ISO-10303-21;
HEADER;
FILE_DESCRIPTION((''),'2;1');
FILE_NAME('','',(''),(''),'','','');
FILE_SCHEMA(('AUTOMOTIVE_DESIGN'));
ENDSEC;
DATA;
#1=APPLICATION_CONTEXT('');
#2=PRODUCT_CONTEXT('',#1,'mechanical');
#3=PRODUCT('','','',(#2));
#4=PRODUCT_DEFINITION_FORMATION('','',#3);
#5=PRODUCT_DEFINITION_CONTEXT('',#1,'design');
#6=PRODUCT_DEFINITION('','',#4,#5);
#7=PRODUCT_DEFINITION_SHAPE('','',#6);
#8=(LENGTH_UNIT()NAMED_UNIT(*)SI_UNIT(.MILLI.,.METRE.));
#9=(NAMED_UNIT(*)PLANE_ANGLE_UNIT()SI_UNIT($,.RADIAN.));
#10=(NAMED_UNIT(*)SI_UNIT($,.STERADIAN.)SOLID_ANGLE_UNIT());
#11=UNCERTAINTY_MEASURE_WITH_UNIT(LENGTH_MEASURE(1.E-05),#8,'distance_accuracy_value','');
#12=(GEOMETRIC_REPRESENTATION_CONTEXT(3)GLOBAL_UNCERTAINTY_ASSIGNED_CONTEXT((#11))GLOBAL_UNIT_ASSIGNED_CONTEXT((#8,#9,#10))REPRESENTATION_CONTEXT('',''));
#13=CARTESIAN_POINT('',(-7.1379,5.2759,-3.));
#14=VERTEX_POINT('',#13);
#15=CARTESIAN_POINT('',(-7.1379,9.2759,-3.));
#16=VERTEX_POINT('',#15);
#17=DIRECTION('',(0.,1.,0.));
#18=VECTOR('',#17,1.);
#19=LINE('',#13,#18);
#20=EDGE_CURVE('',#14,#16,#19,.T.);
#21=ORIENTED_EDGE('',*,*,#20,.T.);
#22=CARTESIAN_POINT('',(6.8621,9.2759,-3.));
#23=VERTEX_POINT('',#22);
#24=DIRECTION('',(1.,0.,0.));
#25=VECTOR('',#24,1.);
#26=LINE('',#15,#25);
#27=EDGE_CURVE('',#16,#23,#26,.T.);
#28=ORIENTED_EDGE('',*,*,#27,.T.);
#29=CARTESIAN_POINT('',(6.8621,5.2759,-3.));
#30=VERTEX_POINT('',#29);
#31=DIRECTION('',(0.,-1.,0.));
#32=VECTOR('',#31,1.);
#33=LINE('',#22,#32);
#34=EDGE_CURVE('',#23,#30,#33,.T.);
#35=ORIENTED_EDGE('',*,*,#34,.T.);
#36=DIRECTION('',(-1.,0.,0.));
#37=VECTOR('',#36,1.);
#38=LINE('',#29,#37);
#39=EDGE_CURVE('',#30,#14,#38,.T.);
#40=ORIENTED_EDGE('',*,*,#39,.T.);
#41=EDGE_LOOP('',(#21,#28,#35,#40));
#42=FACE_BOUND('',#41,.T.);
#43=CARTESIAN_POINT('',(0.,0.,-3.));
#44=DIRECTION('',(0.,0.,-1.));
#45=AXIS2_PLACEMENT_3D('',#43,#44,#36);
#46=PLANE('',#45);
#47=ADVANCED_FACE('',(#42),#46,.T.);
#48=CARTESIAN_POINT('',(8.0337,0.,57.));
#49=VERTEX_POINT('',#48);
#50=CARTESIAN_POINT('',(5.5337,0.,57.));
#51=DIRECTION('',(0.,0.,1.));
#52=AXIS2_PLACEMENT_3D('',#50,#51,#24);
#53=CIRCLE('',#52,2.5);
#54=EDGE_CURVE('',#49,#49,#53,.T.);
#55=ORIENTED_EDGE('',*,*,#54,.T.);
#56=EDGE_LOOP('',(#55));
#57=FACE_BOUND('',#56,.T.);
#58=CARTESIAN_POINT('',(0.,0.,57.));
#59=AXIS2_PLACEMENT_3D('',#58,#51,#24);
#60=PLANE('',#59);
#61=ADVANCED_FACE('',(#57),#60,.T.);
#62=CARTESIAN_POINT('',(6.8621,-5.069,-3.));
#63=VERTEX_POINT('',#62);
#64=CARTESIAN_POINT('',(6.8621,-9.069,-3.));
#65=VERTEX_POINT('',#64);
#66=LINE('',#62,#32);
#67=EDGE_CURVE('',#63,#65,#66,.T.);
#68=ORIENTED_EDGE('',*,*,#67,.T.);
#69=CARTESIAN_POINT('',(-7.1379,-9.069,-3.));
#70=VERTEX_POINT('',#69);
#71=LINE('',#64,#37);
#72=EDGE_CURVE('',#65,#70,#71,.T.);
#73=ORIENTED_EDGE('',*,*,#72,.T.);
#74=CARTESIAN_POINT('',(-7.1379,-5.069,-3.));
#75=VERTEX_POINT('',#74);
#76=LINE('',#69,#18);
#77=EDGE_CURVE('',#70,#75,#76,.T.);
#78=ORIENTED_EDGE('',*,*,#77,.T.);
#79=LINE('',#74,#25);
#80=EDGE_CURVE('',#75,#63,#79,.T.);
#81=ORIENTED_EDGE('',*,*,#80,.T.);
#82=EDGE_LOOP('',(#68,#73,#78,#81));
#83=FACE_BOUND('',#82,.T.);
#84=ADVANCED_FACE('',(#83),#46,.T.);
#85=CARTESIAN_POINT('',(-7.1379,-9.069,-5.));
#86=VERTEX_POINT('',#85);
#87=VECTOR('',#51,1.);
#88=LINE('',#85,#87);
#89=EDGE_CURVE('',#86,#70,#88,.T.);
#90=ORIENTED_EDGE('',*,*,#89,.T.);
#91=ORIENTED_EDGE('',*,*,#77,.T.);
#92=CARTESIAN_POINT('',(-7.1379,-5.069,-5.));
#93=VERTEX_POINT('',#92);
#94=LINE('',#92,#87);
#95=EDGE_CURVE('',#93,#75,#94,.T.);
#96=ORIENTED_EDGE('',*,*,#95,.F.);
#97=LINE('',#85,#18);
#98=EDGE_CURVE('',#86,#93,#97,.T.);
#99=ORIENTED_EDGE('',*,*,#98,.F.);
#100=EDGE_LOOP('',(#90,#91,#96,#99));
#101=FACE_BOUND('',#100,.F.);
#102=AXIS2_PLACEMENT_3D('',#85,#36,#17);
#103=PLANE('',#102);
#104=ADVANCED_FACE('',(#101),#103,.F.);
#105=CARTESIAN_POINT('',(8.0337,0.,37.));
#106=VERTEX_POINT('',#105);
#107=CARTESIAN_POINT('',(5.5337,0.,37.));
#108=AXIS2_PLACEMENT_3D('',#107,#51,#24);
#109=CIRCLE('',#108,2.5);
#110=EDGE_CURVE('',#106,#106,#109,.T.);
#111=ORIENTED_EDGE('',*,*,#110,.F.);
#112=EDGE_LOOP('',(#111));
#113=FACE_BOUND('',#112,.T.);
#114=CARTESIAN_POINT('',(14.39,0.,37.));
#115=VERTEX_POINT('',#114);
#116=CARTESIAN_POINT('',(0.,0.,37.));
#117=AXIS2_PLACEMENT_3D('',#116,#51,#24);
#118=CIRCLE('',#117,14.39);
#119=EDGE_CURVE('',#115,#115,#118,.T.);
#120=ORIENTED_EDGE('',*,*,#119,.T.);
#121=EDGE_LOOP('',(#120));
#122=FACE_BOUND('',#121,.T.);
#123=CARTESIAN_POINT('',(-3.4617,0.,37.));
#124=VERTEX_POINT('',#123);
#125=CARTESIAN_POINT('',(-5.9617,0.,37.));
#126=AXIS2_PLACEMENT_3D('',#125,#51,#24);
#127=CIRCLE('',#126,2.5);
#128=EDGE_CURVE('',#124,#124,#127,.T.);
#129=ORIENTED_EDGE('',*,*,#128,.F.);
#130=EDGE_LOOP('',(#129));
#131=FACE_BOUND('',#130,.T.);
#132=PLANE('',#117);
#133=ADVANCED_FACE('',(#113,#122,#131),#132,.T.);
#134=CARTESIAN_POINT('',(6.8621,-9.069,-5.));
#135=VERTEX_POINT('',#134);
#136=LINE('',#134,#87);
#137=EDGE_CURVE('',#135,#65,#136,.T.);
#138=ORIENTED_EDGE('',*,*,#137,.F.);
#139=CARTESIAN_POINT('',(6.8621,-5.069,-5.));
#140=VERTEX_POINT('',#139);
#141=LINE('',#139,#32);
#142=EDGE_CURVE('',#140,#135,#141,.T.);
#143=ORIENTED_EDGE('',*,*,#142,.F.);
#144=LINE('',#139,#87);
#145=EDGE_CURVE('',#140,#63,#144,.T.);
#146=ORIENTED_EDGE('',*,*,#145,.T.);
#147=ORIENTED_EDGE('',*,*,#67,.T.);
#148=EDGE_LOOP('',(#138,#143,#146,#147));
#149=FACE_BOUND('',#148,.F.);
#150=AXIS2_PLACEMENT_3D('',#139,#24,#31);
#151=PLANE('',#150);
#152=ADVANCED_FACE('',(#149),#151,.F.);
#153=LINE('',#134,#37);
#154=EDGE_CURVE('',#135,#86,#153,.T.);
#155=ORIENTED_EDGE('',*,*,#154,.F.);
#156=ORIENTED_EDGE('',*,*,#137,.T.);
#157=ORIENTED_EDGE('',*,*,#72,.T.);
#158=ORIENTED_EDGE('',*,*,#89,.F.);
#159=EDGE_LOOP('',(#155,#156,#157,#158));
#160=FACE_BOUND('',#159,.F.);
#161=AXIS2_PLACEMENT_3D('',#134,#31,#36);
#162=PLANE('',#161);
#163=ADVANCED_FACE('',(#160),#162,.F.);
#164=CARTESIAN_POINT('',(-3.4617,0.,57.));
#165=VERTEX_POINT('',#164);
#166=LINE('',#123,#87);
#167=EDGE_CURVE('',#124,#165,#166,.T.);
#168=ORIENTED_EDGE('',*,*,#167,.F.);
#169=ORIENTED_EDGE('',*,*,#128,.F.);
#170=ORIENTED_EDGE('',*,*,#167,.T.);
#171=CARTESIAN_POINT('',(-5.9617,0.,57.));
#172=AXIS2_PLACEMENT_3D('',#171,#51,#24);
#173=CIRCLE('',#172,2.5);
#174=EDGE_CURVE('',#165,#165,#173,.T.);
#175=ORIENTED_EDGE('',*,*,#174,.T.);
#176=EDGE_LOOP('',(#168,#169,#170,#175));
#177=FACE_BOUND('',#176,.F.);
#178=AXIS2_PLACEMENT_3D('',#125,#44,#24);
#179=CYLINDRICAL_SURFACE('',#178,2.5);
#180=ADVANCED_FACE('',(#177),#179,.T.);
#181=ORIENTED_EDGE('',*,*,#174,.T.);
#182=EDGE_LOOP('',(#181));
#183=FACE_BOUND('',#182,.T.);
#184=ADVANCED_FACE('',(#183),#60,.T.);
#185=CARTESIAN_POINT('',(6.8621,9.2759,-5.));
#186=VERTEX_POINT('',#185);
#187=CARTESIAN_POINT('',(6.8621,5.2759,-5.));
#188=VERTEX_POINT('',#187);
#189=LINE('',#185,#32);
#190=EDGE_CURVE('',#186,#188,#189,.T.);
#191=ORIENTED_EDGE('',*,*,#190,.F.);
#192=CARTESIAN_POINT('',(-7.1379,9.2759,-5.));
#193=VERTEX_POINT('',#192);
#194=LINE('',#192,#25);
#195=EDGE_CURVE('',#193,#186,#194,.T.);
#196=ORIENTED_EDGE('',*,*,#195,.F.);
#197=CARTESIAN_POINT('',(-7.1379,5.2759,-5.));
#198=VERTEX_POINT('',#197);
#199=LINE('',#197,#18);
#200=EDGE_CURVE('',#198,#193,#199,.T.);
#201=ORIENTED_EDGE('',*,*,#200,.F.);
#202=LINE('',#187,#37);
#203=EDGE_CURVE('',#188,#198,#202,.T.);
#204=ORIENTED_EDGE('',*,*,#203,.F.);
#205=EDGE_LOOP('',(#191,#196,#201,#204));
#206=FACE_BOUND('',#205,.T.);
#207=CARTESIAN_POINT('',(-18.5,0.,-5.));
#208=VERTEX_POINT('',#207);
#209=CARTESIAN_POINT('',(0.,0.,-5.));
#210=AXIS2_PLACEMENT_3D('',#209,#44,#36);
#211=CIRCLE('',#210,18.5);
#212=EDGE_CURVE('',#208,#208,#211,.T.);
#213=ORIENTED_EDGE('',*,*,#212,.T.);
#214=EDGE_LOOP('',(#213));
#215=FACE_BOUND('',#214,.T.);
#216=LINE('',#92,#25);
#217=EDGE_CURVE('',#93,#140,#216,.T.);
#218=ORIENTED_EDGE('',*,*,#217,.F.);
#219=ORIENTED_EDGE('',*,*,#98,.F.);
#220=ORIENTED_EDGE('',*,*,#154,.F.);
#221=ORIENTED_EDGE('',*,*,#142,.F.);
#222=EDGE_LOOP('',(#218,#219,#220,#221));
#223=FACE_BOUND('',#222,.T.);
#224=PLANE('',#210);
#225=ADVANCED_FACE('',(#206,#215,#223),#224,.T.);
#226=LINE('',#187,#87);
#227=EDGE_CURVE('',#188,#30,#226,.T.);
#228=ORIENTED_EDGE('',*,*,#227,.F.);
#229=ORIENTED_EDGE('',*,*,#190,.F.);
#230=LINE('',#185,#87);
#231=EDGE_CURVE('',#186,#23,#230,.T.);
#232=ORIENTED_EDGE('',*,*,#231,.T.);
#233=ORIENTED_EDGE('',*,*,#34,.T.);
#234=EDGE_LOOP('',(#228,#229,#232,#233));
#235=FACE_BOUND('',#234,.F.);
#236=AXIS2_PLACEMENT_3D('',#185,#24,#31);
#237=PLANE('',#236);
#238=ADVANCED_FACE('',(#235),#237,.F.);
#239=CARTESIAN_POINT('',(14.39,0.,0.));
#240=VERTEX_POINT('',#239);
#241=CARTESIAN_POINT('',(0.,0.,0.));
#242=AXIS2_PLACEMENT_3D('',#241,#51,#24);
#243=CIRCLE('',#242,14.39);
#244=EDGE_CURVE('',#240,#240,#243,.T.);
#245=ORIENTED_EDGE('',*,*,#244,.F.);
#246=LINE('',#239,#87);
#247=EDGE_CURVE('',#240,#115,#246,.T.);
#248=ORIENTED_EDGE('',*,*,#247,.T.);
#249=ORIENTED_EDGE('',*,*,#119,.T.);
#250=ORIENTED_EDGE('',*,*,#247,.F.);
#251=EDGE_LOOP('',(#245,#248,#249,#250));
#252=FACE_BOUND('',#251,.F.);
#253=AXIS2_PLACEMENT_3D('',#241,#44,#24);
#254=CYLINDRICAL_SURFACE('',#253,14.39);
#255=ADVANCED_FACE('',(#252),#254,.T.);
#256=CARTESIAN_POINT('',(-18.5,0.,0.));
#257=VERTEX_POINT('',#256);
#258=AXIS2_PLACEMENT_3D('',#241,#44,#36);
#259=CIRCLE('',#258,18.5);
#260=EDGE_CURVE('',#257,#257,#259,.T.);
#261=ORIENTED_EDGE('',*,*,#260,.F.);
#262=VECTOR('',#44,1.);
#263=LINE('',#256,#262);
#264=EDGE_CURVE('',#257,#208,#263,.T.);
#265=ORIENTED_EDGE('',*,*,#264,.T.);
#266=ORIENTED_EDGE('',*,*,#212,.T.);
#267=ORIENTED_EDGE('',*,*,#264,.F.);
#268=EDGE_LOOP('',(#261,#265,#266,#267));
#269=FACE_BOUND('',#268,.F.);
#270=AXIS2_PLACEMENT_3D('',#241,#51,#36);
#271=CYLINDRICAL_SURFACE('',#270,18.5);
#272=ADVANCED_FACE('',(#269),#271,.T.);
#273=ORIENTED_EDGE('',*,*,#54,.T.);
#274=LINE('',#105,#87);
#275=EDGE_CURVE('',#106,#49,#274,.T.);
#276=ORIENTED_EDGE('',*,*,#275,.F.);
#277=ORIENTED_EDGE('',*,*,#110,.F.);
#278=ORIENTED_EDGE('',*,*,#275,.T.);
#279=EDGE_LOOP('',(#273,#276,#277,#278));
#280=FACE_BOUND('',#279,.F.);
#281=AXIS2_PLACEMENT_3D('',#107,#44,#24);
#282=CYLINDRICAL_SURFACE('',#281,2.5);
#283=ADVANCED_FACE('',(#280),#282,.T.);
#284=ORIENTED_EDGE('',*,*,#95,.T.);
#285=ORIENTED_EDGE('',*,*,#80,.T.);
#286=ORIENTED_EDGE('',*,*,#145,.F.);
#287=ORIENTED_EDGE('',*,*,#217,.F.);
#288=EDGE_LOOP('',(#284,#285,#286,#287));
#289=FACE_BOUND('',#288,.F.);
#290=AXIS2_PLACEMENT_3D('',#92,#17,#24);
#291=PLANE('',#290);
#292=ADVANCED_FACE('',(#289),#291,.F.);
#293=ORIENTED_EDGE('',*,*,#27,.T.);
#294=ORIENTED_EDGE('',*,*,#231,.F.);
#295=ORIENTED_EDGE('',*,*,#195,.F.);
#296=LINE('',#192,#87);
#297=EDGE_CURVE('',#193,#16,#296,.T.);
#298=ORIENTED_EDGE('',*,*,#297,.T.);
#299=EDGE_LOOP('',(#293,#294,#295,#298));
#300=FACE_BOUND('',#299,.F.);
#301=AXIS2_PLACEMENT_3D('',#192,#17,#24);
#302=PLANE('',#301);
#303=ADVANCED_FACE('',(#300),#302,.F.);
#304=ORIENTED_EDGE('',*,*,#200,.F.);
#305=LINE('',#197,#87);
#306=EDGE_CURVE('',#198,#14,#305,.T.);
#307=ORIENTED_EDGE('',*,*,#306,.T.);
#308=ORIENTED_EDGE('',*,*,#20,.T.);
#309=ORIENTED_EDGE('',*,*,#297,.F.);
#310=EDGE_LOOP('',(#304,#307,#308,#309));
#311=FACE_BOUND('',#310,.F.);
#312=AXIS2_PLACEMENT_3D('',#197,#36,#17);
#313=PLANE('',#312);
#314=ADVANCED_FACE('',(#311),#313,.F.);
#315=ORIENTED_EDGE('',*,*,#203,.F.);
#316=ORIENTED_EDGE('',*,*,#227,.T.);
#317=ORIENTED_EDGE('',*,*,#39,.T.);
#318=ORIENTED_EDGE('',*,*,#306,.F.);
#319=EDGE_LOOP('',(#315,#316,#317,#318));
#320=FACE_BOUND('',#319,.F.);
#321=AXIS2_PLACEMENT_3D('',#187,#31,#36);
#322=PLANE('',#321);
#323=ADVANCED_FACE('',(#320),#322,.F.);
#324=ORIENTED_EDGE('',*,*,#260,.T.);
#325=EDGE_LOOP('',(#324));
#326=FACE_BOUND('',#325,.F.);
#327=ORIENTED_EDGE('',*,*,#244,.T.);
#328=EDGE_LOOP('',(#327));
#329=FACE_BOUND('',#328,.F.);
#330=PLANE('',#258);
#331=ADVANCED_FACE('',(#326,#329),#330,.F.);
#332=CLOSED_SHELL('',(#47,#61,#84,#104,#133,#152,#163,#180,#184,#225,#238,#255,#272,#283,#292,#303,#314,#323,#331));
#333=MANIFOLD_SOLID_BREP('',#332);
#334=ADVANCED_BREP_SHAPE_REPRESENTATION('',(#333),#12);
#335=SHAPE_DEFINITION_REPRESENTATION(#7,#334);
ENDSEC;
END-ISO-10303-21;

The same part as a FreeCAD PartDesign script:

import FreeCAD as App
import Part
import Sketcher

V = App.Vector
Q = App.Units.Quantity


def add_polygon(sketch, points):
    """Adds a closed chain of lines whose ends are joined by coincident constraints."""
    first, n = sketch.GeometryCount, len(points)
    for a, b in zip(points, points[1:] + points[:1]):
        sketch.addGeometry(Part.LineSegment(App.Vector(*a, 0), App.Vector(*b, 0)), False)
    for i in range(n):
        sketch.addConstraint(Sketcher.Constraint("Coincident", first + i, 2, first + (i + 1) % n, 1))

doc = App.newDocument("Part")
params = doc.addObject("Spreadsheet::Sheet", "Params")
for row, (alias, value) in enumerate([
    ("sketch1_diameter", "28.78 mm"),
    ("pad1_length", "37 mm"),
    ("sketch2_diameter", "5 mm"),
    ("pad2_length", "20 mm"),
    ("sketch3_diameter", "37 mm"),
    ("pad3_length", "5 mm"),
    ("sketch4_width", "14 mm"),
    ("sketch4_height", "4 mm"),
    ("pocket1_length", "2 mm"),
], start=1):
    params.set(f"A{row}", alias)
    params.set(f"B{row}", "=" + value)
    params.setAlias(f"B{row}", alias)

body = doc.addObject("PartDesign::Body", "Body")

sketch1 = body.newObject("Sketcher::SketchObject", "Sketch")
sketch1.AttachmentSupport = (doc.getObject("XY_Plane"), [""])
sketch1.MapMode = "FlatFace"
sketch1.addGeometry(Part.Circle(V(0, 0, 0), V(0, 0, 1), 14), False)
sketch1.addConstraint([
    Sketcher.Constraint("Coincident", 0, 3, -1, 1),
    Sketcher.Constraint("Diameter", 0, Q("28.78 mm")),
])
sketch1.setExpression("Constraints[1]", "Params.sketch1_diameter")
pad1 = body.newObject("PartDesign::Pad", "Pad")
pad1.Profile = sketch1
pad1.setExpression("Length", "Params.pad1_length")

sketch2 = body.newObject("Sketcher::SketchObject", "Sketch001")
sketch2.AttachmentSupport = (doc.getObject("XY_Plane"), [""])
sketch2.MapMode = "FlatFace"
sketch2.AttachmentOffset = App.Placement(V(0, 0, 37), App.Rotation())
sketch2.addGeometry([
    Part.Circle(V(-6, 0, 0), V(0, 0, 1), 2.5),
    Part.Circle(V(5.5, 0, 0), V(0, 0, 1), 2.5),
], False)
sketch2.addConstraint([
    Sketcher.Constraint("Equal", 0, 1),
    Sketcher.Constraint("PointOnObject", 0, 3, -1),
    Sketcher.Constraint("PointOnObject", 1, 3, -1),
    Sketcher.Constraint("Diameter", 0, Q("5 mm")),
    Sketcher.Constraint("DistanceX", 0, 3, -1, 1, Q("5.9617 mm")),
    Sketcher.Constraint("DistanceX", -1, 1, 1, 3, Q("5.5337 mm")),
])
sketch2.setExpression("Constraints[3]", "Params.sketch2_diameter")
pad2 = body.newObject("PartDesign::Pad", "Pad001")
pad2.Profile = sketch2
pad2.setExpression("Length", "Params.pad2_length")

sketch3 = body.newObject("Sketcher::SketchObject", "Sketch002")
sketch3.AttachmentSupport = (doc.getObject("XY_Plane"), [""])
sketch3.MapMode = "FlatFace"
sketch3.addGeometry(Part.Circle(V(0, 0, 0), V(0, 0, 1), 18), False)
sketch3.addConstraint([
    Sketcher.Constraint("Coincident", 0, 3, -1, 1),
    Sketcher.Constraint("Diameter", 0, Q("37 mm")),
])
sketch3.setExpression("Constraints[1]", "Params.sketch3_diameter")
pad3 = body.newObject("PartDesign::Pad", "Pad002")
pad3.Profile = sketch3
pad3.setExpression("Length", "Params.pad3_length")
pad3.Reversed = True

sketch4 = body.newObject("Sketcher::SketchObject", "Sketch003")
sketch4.AttachmentSupport = (doc.getObject("XY_Plane"), [""])
sketch4.MapMode = "FlatFace"
sketch4.AttachmentOffset = App.Placement(V(0, 0, -5), App.Rotation())
add_polygon(sketch4, [(6.9, 9.3), (6.9, 5.3), (-7.1, 5.3), (-7.1, 9.3)])
add_polygon(sketch4, [(6.9, -5.1), (6.9, -9.1), (-7.1, -9.1), (-7.1, -5.1)])
sketch4.addConstraint([
    Sketcher.Constraint("Vertical", 0),
    Sketcher.Constraint("Horizontal", 1),
    Sketcher.Constraint("Vertical", 2),
    Sketcher.Constraint("Horizontal", 3),
    Sketcher.Constraint("Vertical", 4),
    Sketcher.Constraint("Horizontal", 5),
    Sketcher.Constraint("Vertical", 6),
    Sketcher.Constraint("Horizontal", 7),
    Sketcher.Constraint("Vertical", 3, 2, 4, 2),
    Sketcher.Constraint("Vertical", 2, 2, 5, 2),
    Sketcher.Constraint("Equal", 2, 4),
    Sketcher.Constraint("DistanceX", 1, 2, 1, 1, Q("14 mm")),
    Sketcher.Constraint("DistanceY", 0, 2, 0, 1, Q("4 mm")),
    Sketcher.Constraint("DistanceX", -1, 1, 0, 2, Q("6.862 mm")),
    Sketcher.Constraint("DistanceY", -1, 1, 0, 2, Q("5.276 mm")),
    Sketcher.Constraint("DistanceY", 4, 2, -1, 1, Q("9.069 mm")),
])
sketch4.setExpression("Constraints[19]", "Params.sketch4_width")
sketch4.setExpression("Constraints[20]", "Params.sketch4_height")
pocket1 = body.newObject("PartDesign::Pocket", "Pocket")
pocket1.Profile = sketch4
pocket1.setExpression("Length", "Params.pocket1_length")
pocket1.Reversed = True

doc.recompute()
